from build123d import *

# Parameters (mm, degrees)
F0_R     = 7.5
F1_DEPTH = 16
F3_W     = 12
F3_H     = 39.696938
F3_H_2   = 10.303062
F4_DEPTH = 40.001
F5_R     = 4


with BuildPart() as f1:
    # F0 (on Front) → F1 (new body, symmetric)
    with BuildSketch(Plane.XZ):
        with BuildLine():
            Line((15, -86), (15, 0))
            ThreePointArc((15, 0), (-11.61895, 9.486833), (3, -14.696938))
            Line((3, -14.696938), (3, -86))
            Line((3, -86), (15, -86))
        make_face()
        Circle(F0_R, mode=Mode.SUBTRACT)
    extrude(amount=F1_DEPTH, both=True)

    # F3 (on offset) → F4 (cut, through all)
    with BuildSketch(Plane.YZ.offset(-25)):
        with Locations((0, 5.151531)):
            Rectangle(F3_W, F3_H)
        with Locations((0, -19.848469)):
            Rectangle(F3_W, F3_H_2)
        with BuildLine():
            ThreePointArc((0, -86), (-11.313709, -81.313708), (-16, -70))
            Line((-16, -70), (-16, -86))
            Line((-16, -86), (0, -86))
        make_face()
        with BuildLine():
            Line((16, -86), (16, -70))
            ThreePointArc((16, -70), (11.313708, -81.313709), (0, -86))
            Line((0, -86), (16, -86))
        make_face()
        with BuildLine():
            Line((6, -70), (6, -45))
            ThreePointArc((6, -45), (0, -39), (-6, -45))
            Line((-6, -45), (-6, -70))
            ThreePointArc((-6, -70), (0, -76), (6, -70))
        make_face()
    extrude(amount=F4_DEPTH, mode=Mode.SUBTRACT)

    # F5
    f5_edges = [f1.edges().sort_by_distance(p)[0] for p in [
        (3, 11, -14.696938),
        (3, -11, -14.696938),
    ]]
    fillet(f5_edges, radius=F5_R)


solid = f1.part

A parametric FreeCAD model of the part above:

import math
import FreeCAD as App
import Part
import Sketcher

V = App.Vector
Q = App.Units.Quantity


def edges_at(feature, points):
    """Names of the edges that pass closest to the given points."""
    edges = feature.Shape.Edges
    near = lambda p: min(range(len(edges)), key=lambda i: edges[i].distToShape(Part.Vertex(*p))[0])
    return sorted({f"Edge{near(p) + 1}" for p in points})


def add_polygon(sketch, points):
    """Adds a closed chain of lines whose ends are joined by coincident constraints."""
    first, n = sketch.GeometryCount, len(points)
    for a, b in zip(points, points[1:] + points[:1]):
        sketch.addGeometry(Part.LineSegment(App.Vector(*a, 0), App.Vector(*b, 0)), False)
    for i in range(n):
        sketch.addConstraint(Sketcher.Constraint("Coincident", first + i, 2, first + (i + 1) % n, 1))

doc = App.newDocument("Part")
params = doc.addObject("Spreadsheet::Sheet", "Params")
for row, (alias, value) in enumerate([
    ("sketch1_diameter", "15 mm"),
    ("sketch1_radius", "15 mm"),
    ("sketch1_width", "12 mm"),
    ("sketch1_height", "86 mm"),
    ("pad1_length", "32 mm"),
    ("sketch2_radius", "16 mm"),
    ("sketch2_radius2", "6 mm"),
    ("sketch2_height", "50 mm"),
    ("sketch2_height2", "25 mm"),
    ("fillet_radius", "4 mm"),
], start=1):
    params.set(f"A{row}", alias)
    params.set(f"B{row}", "=" + value)
    params.setAlias(f"B{row}", alias)

body = doc.addObject("PartDesign::Body", "Body")

sketch1 = doc.addObject("Sketcher::SketchObject", "Sketch")
body.addObject(sketch1)
sketch1.AttachmentSupport = (doc.XZ_Plane, [""])
sketch1.MapMode = "FlatFace"
sketch1.addGeometry([
    Part.LineSegment(V(15, -86, 0), V(15, 0, 0)),
    Part.ArcOfCircle(Part.Circle(V(0, 0, 0), V(0, 0, 1), 15), math.radians(0), math.radians(282)),
    Part.LineSegment(V(3, -15, 0), V(3, -86, 0)),
    Part.LineSegment(V(3, -86, 0), V(15, -86, 0)),
    Part.Circle(V(0, 0, 0), V(0, 0, 1), 8),
], False)
sketch1.addConstraint([
    Sketcher.Constraint("Tangent", 0, 2, 1, 1),
    Sketcher.Constraint("Coincident", 1, 2, 2, 1),
    Sketcher.Constraint("Coincident", 2, 2, 3, 1),
    Sketcher.Constraint("Coincident", 3, 2, 0, 1),
    Sketcher.Constraint("Vertical", 0),
    Sketcher.Constraint("Vertical", 2),
    Sketcher.Constraint("Horizontal", 3),
    Sketcher.Constraint("Coincident", 1, 3, -1, 1),
    Sketcher.Constraint("Coincident", 4, 3, -1, 1),
    Sketcher.Constraint("Diameter", 4, Q("15 mm")),
    Sketcher.Constraint("Radius", 1, Q("15 mm")),
    Sketcher.Constraint("DistanceX", 3, 1, 3, 2, Q("12 mm")),
    Sketcher.Constraint("DistanceY", 0, 1, 0, 2, Q("86 mm")),
])
sketch1.setExpression("Constraints[9]", "Params.sketch1_diameter")
sketch1.setExpression("Constraints[10]", "Params.sketch1_radius")
sketch1.setExpression("Constraints[11]", "Params.sketch1_width")
sketch1.setExpression("Constraints[12]", "Params.sketch1_height")
pad1 = doc.addObject("PartDesign::Pad", "Pad")
body.addObject(pad1)
pad1.Profile = sketch1
pad1.setExpression("Length", "Params.pad1_length")
pad1.Midplane = True

sketch2 = doc.addObject("Sketcher::SketchObject", "Sketch001")
body.addObject(sketch2)
sketch2.AttachmentSupport = (doc.YZ_Plane, [""])
sketch2.MapMode = "FlatFace"
sketch2.AttachmentOffset = App.Placement(V(0, 0, -25), App.Rotation())
add_polygon(sketch2, [(-6, 25), (-6, -25), (6, -25), (6, 25)])
sketch2.addGeometry(Part.ArcOfCircle(Part.Circle(V(0, -70, 0), V(0, 0, 1), 16), math.radians(180), math.radians(270)), False)
sketch2.addGeometry(Part.LineSegment(V(-16, -70, 0), V(-16, -86, 0)), False)
sketch2.addGeometry(Part.LineSegment(V(-16, -86, 0), V(0, -86, 0)), False)
sketch2.addGeometry(Part.LineSegment(V(16, -86, 0), V(16, -70, 0)), False)
sketch2.addGeometry(Part.ArcOfCircle(Part.Circle(V(0, -70, 0), V(0, 0, 1), 16), math.radians(-90), math.radians(0)), False)
sketch2.addGeometry(Part.LineSegment(V(0, -86, 0), V(16, -86, 0)), False)
sketch2.addGeometry(Part.LineSegment(V(6, -70, 0), V(6, -45, 0)), False)
sketch2.addGeometry(Part.ArcOfCircle(Part.Circle(V(0, -45, 0), V(0, 0, 1), 6), math.radians(0), math.radians(180)), False)
sketch2.addGeometry(Part.LineSegment(V(-6, -45, 0), V(-6, -70, 0)), False)
sketch2.addGeometry(Part.ArcOfCircle(Part.Circle(V(0, -70, 0), V(0, 0, 1), 6), math.radians(180), math.radians(360)), False)
sketch2.addConstraint([
    Sketcher.Constraint("Tangent", 4, 1, 5, 1),
    Sketcher.Constraint("Coincident", 5, 2, 6, 1),
    Sketcher.Constraint("Tangent", 6, 2, 4, 2),
    Sketcher.Constraint("Tangent", 7, 2, 8, 2),
    Sketcher.Constraint("Tangent", 8, 1, 9, 1),
    Sketcher.Constraint("Coincident", 9, 2, 7, 1),
    Sketcher.Constraint("Tangent", 10, 2, 11, 1),
    Sketcher.Constraint("Tangent", 11, 2, 12, 1),
    Sketcher.Constraint("Tangent", 12, 2, 13, 1),
    Sketcher.Constraint("Tangent", 13, 2, 10, 1),
    Sketcher.Constraint("Vertical", 0),
    Sketcher.Constraint("Horizontal", 1),
    Sketcher.Constraint("Vertical", 2),
    Sketcher.Constraint("Horizontal", 3),
    Sketcher.Constraint("Vertical", 5),
    Sketcher.Constraint("Horizontal", 6),
    Sketcher.Constraint("Vertical", 7),
    Sketcher.Constraint("Horizontal", 9),
    Sketcher.Constraint("Vertical", 10),
    Sketcher.Constraint("Vertical", 12),
    Sketcher.Constraint("Coincident", 8, 3, 4, 3),
    Sketcher.Constraint("Coincident", 13, 3, 4, 3),
    Sketcher.Constraint("Equal", 4, 8),
    Sketcher.Constraint("Symmetric", 0, 2, 2, 2, -1, 1),
    Sketcher.Constraint("PointOnObject", 4, 3, -2),
    Sketcher.Constraint("Vertical", 2, 2, 10, 2),
    Sketcher.Constraint("Radius", 4, Q("16 mm")),
    Sketcher.Constraint("Radius", 11, Q("6 mm")),
    Sketcher.Constraint("DistanceY", 0, 2, 0, 1, Q("50 mm")),
    Sketcher.Constraint("DistanceY", 10, 1, 10, 2, Q("25 mm")),
    Sketcher.Constraint("DistanceY", 4, 3, -1, 1, Q("70 mm")),
])
sketch2.setExpression("Constraints[30]", "Params.sketch2_radius")
sketch2.setExpression("Constraints[31]", "Params.sketch2_radius2")
sketch2.setExpression("Constraints[32]", "Params.sketch2_height")
sketch2.setExpression("Constraints[33]", "Params.sketch2_height2")
pocket1 = doc.addObject("PartDesign::Pocket", "Pocket")
body.addObject(pocket1)
pocket1.Profile = sketch2
pocket1.Type = "ThroughAll"
pocket1.Reversed = True
doc.recompute()

fillet = doc.addObject("PartDesign::Fillet", "Fillet")
body.addObject(fillet)
fillet.Base = (pocket1, edges_at(pocket1, [(3, 11, -14.697), (3, -11, -14.697)]))
fillet.setExpression("Radius", "Params.fillet_radius")

doc.recompute()
